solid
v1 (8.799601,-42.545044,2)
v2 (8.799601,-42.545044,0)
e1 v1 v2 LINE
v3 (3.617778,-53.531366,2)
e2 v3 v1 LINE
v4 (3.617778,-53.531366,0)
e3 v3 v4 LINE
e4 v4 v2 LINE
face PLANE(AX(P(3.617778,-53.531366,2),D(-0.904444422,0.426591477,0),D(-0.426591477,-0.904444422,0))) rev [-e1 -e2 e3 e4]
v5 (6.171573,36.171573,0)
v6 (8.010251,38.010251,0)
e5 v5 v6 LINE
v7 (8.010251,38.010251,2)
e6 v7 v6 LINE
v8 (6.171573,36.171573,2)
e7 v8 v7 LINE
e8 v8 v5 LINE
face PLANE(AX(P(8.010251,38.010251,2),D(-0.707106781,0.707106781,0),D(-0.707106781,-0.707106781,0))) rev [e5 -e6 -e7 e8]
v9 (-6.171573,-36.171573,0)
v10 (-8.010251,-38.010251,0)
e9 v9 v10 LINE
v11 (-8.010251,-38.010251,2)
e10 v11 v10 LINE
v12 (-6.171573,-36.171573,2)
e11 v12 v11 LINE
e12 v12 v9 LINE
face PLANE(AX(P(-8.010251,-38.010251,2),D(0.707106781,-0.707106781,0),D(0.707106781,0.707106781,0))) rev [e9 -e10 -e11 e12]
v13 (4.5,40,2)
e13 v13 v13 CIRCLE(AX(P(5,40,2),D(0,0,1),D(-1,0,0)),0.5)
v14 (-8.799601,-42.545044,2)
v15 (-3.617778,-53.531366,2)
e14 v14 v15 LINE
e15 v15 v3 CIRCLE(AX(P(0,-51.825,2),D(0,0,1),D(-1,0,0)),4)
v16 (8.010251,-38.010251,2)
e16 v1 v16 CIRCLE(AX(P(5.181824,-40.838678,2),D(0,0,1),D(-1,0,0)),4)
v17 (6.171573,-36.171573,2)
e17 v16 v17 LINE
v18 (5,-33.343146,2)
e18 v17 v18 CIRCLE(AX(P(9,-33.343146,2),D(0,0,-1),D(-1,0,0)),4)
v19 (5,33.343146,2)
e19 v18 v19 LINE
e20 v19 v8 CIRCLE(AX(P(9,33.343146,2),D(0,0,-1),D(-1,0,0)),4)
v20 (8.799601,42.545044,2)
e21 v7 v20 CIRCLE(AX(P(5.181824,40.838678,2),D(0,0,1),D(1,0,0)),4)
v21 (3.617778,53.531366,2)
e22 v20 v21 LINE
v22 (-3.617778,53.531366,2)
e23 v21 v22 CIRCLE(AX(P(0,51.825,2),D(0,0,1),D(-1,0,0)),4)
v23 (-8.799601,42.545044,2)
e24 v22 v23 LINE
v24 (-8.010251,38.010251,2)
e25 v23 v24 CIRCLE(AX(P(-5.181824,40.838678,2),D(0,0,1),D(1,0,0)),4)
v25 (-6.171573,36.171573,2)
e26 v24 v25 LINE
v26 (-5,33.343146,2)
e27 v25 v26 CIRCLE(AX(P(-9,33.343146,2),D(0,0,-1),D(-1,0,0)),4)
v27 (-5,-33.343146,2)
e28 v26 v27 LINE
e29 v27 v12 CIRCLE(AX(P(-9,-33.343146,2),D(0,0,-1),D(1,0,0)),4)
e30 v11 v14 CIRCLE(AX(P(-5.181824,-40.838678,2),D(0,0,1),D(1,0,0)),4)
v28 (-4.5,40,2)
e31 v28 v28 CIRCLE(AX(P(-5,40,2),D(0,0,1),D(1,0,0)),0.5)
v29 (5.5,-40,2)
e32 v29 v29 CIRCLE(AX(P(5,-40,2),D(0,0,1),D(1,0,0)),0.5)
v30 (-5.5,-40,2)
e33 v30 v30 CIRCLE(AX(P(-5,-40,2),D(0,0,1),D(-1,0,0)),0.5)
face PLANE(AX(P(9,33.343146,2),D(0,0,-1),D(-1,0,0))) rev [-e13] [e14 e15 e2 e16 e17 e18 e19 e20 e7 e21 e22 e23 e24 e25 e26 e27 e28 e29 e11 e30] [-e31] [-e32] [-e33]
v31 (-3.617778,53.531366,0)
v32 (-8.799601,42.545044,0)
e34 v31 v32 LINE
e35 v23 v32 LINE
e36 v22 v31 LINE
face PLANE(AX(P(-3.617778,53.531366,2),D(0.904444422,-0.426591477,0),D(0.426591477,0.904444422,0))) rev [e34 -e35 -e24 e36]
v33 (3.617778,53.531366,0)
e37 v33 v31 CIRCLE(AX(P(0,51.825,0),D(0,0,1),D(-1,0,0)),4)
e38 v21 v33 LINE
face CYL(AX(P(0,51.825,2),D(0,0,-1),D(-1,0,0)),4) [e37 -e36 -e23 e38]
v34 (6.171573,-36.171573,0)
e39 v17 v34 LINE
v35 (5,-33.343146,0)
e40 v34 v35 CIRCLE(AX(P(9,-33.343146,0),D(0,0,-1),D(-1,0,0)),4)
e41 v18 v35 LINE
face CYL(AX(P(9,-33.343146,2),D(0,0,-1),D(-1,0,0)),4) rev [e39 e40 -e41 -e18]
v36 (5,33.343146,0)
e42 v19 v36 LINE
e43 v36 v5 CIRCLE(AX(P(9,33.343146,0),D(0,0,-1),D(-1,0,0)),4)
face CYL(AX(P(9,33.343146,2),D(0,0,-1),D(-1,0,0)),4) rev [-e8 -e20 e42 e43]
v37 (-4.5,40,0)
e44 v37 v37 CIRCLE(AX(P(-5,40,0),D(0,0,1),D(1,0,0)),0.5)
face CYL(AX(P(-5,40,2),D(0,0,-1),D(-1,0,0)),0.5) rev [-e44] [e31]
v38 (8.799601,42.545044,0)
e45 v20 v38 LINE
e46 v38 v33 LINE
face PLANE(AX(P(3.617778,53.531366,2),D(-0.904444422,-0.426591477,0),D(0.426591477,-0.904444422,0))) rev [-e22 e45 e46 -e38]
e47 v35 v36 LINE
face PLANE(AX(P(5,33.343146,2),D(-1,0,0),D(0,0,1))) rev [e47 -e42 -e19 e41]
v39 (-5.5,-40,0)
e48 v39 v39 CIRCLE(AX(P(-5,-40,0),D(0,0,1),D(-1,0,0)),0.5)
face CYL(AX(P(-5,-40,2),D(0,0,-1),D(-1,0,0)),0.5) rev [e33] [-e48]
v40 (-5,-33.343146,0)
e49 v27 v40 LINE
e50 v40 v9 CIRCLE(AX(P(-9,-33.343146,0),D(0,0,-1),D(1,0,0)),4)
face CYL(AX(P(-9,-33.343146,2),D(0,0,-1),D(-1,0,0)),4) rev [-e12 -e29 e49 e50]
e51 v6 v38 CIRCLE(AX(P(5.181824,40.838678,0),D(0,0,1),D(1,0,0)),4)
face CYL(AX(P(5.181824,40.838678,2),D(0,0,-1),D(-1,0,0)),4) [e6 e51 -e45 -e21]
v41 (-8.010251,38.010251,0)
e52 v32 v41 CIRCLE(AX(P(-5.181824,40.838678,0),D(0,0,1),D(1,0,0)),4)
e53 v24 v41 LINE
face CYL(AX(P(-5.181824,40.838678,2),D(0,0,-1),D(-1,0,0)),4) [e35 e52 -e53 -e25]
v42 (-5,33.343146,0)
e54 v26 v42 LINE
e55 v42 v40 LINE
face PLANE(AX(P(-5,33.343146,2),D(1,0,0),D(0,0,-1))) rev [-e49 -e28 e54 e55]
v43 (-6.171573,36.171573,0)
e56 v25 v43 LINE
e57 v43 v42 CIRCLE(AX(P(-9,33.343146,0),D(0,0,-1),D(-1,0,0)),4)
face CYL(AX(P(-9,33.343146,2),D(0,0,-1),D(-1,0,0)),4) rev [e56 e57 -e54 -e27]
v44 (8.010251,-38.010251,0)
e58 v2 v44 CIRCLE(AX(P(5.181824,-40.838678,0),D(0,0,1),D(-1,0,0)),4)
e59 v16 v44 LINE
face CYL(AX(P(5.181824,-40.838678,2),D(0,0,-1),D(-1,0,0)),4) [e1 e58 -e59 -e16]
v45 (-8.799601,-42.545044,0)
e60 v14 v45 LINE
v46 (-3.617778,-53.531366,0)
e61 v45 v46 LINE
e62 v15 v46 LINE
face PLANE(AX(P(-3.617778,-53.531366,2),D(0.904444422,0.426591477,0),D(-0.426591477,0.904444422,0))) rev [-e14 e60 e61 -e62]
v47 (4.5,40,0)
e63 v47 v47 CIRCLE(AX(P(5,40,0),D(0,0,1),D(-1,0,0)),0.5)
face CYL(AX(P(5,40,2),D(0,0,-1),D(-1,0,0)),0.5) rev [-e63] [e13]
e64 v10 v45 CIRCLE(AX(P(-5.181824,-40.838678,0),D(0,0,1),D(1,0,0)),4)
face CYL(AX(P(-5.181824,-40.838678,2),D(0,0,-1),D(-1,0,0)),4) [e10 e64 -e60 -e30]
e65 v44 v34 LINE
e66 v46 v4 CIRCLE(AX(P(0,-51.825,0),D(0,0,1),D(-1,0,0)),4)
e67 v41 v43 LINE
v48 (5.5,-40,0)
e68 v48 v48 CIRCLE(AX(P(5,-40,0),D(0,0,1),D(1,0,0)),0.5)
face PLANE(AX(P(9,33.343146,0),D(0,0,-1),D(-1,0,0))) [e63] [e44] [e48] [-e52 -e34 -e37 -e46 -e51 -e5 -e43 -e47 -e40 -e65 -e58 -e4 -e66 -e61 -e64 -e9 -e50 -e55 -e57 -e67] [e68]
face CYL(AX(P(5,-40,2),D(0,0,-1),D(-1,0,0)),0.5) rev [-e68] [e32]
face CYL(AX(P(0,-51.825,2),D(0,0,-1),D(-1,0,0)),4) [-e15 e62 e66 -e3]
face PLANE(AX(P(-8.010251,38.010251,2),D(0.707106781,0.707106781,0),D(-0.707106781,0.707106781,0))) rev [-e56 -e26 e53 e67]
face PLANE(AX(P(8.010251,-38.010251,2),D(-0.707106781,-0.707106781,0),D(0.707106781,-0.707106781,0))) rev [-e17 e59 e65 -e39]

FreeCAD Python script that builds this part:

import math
import FreeCAD as App
import Part
import Sketcher

V = App.Vector

doc = App.newDocument("Part")
params = doc.addObject("Spreadsheet::Sheet", "Params")
for row, (alias, value) in enumerate([
    ("sketch1_diameter", "1 mm"),
    ("sketch1_radius", "4 mm"),
    ("pad1_length", "2 mm"),
], start=1):
    params.set(f"A{row}", alias)
    params.set(f"B{row}", "=" + value)
    params.setAlias(f"B{row}", alias)

body = doc.addObject("PartDesign::Body", "Body")

sketch1 = body.newObject("Sketcher::SketchObject", "Sketch")
sketch1.AttachmentSupport = (doc.getObject("XY_Plane"), [""])
sketch1.MapMode = "FlatFace"
sketch1.addGeometry(Part.LineSegment(V(-3.6, 53.5, 0), V(-8.8, 42.5, 0)), False)
sketch1.addGeometry(Part.ArcOfCircle(Part.Circle(V(-5.2, 40.8, 0), V(0, 0, 1), 4), math.radians(155), math.radians(225)), False)
sketch1.addGeometry(Part.LineSegment(V(-8, 38, 0), V(-6.2, 36.2, 0)), False)
sketch1.addGeometry(Part.ArcOfCircle(Part.Circle(V(-9, 33.3, 0), V(0, 0, 1), 4), math.radians(0), math.radians(45)), False)
sketch1.addGeometry(Part.LineSegment(V(-5, 33.3, 0), V(-5, -33.3, 0)), False)
sketch1.addGeometry(Part.ArcOfCircle(Part.Circle(V(-9, -33.3, 0), V(0, 0, 1), 4), math.radians(-45), math.radians(0)), False)
sketch1.addGeometry(Part.LineSegment(V(-6.2, -36.2, 0), V(-8, -38, 0)), False)
sketch1.addGeometry(Part.ArcOfCircle(Part.Circle(V(-5.2, -40.8, 0), V(0, 0, 1), 4), math.radians(135), math.radians(205)), False)
sketch1.addGeometry(Part.LineSegment(V(-8.8, -42.5, 0), V(-3.6, -53.5, 0)), False)
sketch1.addGeometry(Part.ArcOfCircle(Part.Circle(V(0, -51.8, 0), V(0, 0, 1), 4), math.radians(-155), math.radians(-25)), False)
sketch1.addGeometry(Part.LineSegment(V(3.6, -53.5, 0), V(8.8, -42.5, 0)), False)
sketch1.addGeometry(Part.ArcOfCircle(Part.Circle(V(5.2, -40.8, 0), V(0, 0, 1), 4), math.radians(-25), math.radians(45)), False)
sketch1.addGeometry(Part.LineSegment(V(8, -38, 0), V(6.2, -36.2, 0)), False)
sketch1.addGeometry(Part.ArcOfCircle(Part.Circle(V(9, -33.3, 0), V(0, 0, 1), 4), math.radians(-180), math.radians(-135)), False)
sketch1.addGeometry(Part.LineSegment(V(5, -33.3, 0), V(5, 33.3, 0)), False)
sketch1.addGeometry(Part.ArcOfCircle(Part.Circle(V(9, 33.3, 0), V(0, 0, 1), 4), math.radians(135), math.radians(180)), False)
sketch1.addGeometry(Part.LineSegment(V(6.2, 36.2, 0), V(8, 38, 0)), False)
sketch1.addGeometry(Part.ArcOfCircle(Part.Circle(V(5.2, 40.8, 0), V(0, 0, 1), 4), math.radians(-45), math.radians(25)), False)
sketch1.addGeometry(Part.LineSegment(V(8.8, 42.5, 0), V(3.6, 53.5, 0)), False)
sketch1.addGeometry(Part.ArcOfCircle(Part.Circle(V(0, 51.8, 0), V(0, 0, 1), 4), math.radians(25), math.radians(155)), False)
sketch1.addGeometry(Part.Circle(V(-5, -40, 0), V(0, 0, 1), 0.5), False)
sketch1.addGeometry(Part.Circle(V(5, -40, 0), V(0, 0, 1), 0.5), False)
sketch1.addGeometry(Part.Circle(V(-5, 40, 0), V(0, 0, 1), 0.5), False)
sketch1.addGeometry(Part.Circle(V(5, 40, 0), V(0, 0, 1), 0.5), False)
sketch1.addConstraint(Sketcher.Constraint("Tangent", 0, 2, 1, 1))
sketch1.addConstraint(Sketcher.Constraint("Tangent", 1, 2, 2, 1))
sketch1.addConstraint(Sketcher.Constraint("Tangent", 2, 2, 3, 2))
sketch1.addConstraint(Sketcher.Constraint("Tangent", 3, 1, 4, 1))
sketch1.addConstraint(Sketcher.Constraint("Tangent", 4, 2, 5, 2))
sketch1.addConstraint(Sketcher.Constraint("Tangent", 5, 1, 6, 1))
sketch1.addConstraint(Sketcher.Constraint("Tangent", 6, 2, 7, 1))
sketch1.addConstraint(Sketcher.Constraint("Tangent", 7, 2, 8, 1))
sketch1.addConstraint(Sketcher.Constraint("Tangent", 8, 2, 9, 1))
sketch1.addConstraint(Sketcher.Constraint("Tangent", 9, 2, 10, 1))
sketch1.addConstraint(Sketcher.Constraint("Tangent", 10, 2, 11, 1))
sketch1.addConstraint(Sketcher.Constraint("Tangent", 11, 2, 12, 1))
sketch1.addConstraint(Sketcher.Constraint("Tangent", 12, 2, 13, 2))
sketch1.addConstraint(Sketcher.Constraint("Tangent", 13, 1, 14, 1))
sketch1.addConstraint(Sketcher.Constraint("Tangent", 14, 2, 15, 2))
sketch1.addConstraint(Sketcher.Constraint("Tangent", 15, 1, 16, 1))
sketch1.addConstraint(Sketcher.Constraint("Tangent", 16, 2, 17, 1))
sketch1.addConstraint(Sketcher.Constraint("Tangent", 17, 2, 18, 1))
sketch1.addConstraint(Sketcher.Constraint("Tangent", 18, 2, 19, 1))
sketch1.addConstraint(Sketcher.Constraint("Tangent", 19, 2, 0, 1))
sketch1.addConstraint(Sketcher.Constraint("Vertical", 4))
sketch1.addConstraint(Sketcher.Constraint("Vertical", 14))
sketch1.addConstraint(Sketcher.Constraint("Equal", 1, 3))
sketch1.addConstraint(Sketcher.Constraint("Equal", 3, 5))
sketch1.addConstraint(Sketcher.Constraint("Equal", 5, 7))
sketch1.addConstraint(Sketcher.Constraint("Equal", 7, 9))
sketch1.addConstraint(Sketcher.Constraint("Equal", 9, 11))
sketch1.addConstraint(Sketcher.Constraint("Equal", 11, 13))
sketch1.addConstraint(Sketcher.Constraint("Equal", 13, 15))
sketch1.addConstraint(Sketcher.Constraint("Equal", 15, 17))
sketch1.addConstraint(Sketcher.Constraint("Equal", 17, 19))
sketch1.addConstraint(Sketcher.Constraint("Equal", 20, 21))
sketch1.addConstraint(Sketcher.Constraint("Equal", 21, 22))
sketch1.addConstraint(Sketcher.Constraint("Equal", 22, 23))
sketch1.addConstraint(Sketcher.Constraint("Symmetric", 1, 3, 11, 3, -1, 1))
sketch1.addConstraint(Sketcher.Constraint("Symmetric", 3, 3, 13, 3, -1, 1))
sketch1.addConstraint(Sketcher.Constraint("Symmetric", 7, 3, 17, 3, -1, 1))
sketch1.addConstraint(Sketcher.Constraint("Symmetric", 9, 3, 19, 3, -1, 1))
sketch1.addConstraint(Sketcher.Constraint("Symmetric", 21, 3, 22, 3, -1, 1))
sketch1.addConstraint(Sketcher.Constraint("Symmetric", 20, 3, 23, 3, -1, 1))
sketch1.addConstraint(Sketcher.Constraint("Symmetric", 7, 3, 11, 3, -2))
sketch1.addConstraint(Sketcher.Constraint("Symmetric", 20, 3, 21, 3, -2))
sketch1.addConstraint(Sketcher.Constraint("PointOnObject", 9, 3, -2))
sketch1.addConstraint(Sketcher.Constraint("Perpendicular", 2, 6))
sketch1.addConstraint(Sketcher.Constraint("Perpendicular", 12, 16))
sketch1.addConstraint(Sketcher.Constraint("Horizontal", 5, 3, 13, 3))
sketch1.addConstraint(Sketcher.Constraint("Vertical", 22, 3, 3, 1))
sketch1.addConstraint(Sketcher.Constraint("Diameter", 20, 1.0))
sketch1.addConstraint(Sketcher.Constraint("Radius", 1, 4.0))
sketch1.addConstraint(Sketcher.Constraint("DistanceX", 3, 3, -1, 1, 9.0))
sketch1.addConstraint(Sketcher.Constraint("DistanceY", 20, 3, -1, 1, 40.0))
sketch1.addConstraint(Sketcher.Constraint("DistanceY", 9, 3, -1, 1, 51.825))
sketch1.addConstraint(Sketcher.Constraint("DistanceY", 4, 2, 4, 1, 66.686292))
sketch1.addConstraint(Sketcher.Constraint("DistanceX", 0, 2, -1, 1, 8.799601))
sketch1.setExpression("Constraints[47]", "Params.sketch1_diameter")
sketch1.setExpression("Constraints[48]", "Params.sketch1_radius")
pad1 = body.newObject("PartDesign::Pad", "Pad")
pad1.Profile = sketch1
pad1.setExpression("Length", "Params.pad1_length")

doc.recompute()
